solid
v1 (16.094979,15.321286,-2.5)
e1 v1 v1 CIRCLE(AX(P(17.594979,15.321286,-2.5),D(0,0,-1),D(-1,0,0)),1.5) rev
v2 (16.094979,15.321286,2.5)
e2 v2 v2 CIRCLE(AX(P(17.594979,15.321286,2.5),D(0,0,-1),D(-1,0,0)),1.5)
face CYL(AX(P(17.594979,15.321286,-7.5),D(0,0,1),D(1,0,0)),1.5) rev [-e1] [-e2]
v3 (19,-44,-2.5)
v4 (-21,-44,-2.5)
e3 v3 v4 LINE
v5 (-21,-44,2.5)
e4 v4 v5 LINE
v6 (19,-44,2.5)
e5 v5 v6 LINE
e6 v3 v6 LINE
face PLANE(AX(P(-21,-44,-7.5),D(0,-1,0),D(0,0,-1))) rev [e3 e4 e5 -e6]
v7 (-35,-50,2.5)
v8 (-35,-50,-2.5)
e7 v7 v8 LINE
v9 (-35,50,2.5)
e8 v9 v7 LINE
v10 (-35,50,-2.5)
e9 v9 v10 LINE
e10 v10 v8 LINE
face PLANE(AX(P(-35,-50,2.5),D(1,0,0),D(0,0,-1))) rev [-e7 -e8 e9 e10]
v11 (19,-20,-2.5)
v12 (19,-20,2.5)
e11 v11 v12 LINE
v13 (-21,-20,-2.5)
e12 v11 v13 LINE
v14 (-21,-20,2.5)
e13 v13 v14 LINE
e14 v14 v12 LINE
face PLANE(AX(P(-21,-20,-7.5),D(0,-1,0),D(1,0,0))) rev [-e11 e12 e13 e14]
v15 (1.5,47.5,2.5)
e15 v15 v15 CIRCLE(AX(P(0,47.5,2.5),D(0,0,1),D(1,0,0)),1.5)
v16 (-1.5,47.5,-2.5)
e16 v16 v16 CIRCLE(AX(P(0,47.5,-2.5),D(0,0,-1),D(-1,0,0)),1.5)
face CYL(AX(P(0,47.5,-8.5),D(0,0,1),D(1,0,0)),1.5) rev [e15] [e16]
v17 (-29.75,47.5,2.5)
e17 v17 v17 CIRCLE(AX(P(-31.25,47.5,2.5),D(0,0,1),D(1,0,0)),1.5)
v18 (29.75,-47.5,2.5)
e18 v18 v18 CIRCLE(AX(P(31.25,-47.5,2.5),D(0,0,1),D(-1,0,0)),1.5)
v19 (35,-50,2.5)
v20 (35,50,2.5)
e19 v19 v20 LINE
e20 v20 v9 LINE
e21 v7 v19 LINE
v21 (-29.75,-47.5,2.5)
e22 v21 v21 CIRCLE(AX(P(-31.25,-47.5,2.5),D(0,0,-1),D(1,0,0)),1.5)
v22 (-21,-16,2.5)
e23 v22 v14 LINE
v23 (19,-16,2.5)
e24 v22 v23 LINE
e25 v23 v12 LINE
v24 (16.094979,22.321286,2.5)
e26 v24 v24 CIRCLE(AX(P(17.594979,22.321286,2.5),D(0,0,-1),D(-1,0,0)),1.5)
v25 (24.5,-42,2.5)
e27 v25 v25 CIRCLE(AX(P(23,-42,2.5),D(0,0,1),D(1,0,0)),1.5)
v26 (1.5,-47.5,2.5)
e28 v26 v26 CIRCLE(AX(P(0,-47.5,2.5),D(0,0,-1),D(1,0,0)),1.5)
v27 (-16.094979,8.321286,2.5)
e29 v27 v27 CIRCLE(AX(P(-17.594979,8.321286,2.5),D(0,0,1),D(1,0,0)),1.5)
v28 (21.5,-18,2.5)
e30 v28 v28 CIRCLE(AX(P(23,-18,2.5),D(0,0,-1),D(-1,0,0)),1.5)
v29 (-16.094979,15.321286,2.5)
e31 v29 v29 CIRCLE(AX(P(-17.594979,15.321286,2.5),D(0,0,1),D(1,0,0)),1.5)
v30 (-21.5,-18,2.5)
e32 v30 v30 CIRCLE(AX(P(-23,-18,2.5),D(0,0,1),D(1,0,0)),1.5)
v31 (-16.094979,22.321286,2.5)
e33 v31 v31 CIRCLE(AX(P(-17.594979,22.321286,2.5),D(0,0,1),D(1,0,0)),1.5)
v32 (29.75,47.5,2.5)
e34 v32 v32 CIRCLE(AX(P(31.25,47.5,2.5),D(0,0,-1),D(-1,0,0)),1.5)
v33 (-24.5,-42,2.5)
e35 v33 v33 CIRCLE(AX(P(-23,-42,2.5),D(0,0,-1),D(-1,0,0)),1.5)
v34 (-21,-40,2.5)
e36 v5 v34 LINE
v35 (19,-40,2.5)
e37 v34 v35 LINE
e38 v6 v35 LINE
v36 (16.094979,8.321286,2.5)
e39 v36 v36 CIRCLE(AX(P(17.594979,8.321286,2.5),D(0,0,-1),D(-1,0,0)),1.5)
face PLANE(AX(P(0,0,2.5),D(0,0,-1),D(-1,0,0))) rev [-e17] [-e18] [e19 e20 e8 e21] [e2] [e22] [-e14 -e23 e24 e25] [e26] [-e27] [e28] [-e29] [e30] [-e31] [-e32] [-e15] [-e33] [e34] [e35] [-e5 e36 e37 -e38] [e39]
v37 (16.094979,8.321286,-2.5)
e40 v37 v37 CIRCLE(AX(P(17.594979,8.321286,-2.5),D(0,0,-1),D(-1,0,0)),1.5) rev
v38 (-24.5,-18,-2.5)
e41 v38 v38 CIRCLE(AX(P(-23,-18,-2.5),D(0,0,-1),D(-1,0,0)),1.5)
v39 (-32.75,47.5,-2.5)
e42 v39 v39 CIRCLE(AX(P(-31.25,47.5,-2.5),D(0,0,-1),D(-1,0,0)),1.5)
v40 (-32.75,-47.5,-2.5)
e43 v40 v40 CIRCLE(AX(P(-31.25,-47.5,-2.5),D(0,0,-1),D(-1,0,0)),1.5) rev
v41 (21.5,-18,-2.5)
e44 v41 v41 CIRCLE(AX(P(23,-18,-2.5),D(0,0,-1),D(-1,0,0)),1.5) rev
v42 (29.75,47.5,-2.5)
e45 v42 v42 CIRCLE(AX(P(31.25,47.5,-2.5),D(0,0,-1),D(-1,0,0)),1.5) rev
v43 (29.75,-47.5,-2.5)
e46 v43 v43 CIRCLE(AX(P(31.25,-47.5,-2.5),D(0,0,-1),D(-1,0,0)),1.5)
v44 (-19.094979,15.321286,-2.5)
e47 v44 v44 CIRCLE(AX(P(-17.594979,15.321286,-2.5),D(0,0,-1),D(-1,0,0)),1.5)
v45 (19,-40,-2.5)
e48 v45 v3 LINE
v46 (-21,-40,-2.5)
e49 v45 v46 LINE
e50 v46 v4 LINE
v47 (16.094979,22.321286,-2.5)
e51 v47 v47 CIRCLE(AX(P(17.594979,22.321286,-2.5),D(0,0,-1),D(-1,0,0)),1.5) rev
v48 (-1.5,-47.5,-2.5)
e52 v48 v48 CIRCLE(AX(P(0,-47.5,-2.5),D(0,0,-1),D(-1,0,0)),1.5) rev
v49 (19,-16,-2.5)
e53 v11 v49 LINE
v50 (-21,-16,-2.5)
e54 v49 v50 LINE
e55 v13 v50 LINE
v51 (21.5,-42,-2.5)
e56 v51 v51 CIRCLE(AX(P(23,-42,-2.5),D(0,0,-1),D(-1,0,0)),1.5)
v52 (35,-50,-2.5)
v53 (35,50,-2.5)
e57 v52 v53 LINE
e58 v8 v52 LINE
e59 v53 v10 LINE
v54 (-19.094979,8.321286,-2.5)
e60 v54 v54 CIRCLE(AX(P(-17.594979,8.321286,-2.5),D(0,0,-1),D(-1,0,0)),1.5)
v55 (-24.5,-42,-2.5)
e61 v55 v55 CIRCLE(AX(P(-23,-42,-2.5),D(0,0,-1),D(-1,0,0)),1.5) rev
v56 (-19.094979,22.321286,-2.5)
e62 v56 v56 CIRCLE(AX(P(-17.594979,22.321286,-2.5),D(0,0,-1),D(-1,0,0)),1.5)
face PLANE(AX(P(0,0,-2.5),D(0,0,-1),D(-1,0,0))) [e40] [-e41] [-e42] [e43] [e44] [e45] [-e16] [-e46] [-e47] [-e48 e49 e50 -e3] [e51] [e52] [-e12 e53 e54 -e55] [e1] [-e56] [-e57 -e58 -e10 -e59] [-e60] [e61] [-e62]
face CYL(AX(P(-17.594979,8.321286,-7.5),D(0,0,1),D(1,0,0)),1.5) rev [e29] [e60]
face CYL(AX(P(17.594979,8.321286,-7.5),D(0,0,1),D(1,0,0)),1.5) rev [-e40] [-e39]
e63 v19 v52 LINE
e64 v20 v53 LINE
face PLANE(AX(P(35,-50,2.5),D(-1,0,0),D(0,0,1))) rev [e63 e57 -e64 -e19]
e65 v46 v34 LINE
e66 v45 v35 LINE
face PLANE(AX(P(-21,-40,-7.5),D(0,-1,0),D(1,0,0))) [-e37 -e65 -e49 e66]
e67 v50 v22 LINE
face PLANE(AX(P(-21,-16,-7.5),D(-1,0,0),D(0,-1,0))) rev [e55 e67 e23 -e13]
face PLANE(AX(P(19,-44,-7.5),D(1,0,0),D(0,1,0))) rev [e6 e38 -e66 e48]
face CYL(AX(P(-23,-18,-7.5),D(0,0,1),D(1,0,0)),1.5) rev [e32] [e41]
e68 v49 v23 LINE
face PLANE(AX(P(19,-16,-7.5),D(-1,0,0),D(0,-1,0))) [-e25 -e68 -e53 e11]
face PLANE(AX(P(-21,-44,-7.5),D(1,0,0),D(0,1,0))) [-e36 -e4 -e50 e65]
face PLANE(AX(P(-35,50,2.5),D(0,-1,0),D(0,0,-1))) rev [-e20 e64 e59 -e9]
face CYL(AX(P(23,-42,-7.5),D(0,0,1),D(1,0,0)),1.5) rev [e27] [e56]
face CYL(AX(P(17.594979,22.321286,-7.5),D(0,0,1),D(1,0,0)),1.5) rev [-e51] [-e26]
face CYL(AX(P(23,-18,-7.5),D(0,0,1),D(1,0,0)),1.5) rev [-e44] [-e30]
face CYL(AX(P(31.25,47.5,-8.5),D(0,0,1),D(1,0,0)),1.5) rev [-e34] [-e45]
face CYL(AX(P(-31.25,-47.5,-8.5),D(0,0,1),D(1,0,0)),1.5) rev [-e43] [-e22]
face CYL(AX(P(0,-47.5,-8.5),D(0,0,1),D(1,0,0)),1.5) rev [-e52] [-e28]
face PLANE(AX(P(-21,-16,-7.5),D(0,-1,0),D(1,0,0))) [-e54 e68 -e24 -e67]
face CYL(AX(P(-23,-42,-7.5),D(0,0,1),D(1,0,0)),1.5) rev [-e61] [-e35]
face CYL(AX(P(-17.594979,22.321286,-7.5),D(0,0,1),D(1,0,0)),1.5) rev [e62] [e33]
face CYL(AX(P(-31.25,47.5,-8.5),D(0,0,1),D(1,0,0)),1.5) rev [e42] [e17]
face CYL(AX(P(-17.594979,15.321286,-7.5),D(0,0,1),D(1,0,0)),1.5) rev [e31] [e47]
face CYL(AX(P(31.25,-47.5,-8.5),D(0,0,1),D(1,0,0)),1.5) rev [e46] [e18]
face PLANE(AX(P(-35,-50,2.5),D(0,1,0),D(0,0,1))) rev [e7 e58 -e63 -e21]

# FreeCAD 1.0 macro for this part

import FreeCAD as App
import Part
import Sketcher
from FreeCAD import Vector

doc = App.newDocument("Part")
params = doc.addObject("Spreadsheet::Sheet", "Params")
for row, (alias, value) in enumerate([
    ("sketch1_width", "70 mm"),
    ("sketch1_height", "100 mm"),
    ("pad1_length", "5 mm"),
    ("sketch2_diameter", "3 mm"),
    ("pocket1_length", "11 mm"),
    ("sketch3_diameter", "3 mm"),
    ("sketch3_width", "40 mm"),
    ("sketch3_height", "4 mm"),
    ("pocket2_length", "10 mm"),
], start=1):
    params.set(f"A{row}", alias)
    params.set(f"B{row}", "=" + value)
    params.setAlias(f"B{row}", alias)

body = doc.addObject("PartDesign::Body", "Body")

sketch1 = doc.addObject("Sketcher::SketchObject", "Sketch")
body.addObject(sketch1)
sketch1.AttachmentSupport = (doc.XY_Plane, [""])
sketch1.MapMode = "FlatFace"
sketch1.addGeometry(Part.LineSegment(Vector(-35, 50, 0), Vector(-35, -50, 0)), False)
sketch1.addGeometry(Part.LineSegment(Vector(-35, -50, 0), Vector(35, -50, 0)), False)
sketch1.addGeometry(Part.LineSegment(Vector(35, -50, 0), Vector(35, 50, 0)), False)
sketch1.addGeometry(Part.LineSegment(Vector(35, 50, 0), Vector(-35, 50, 0)), False)
sketch1.addConstraint(Sketcher.Constraint("Coincident", 0, 2, 1, 1))
sketch1.addConstraint(Sketcher.Constraint("Coincident", 1, 2, 2, 1))
sketch1.addConstraint(Sketcher.Constraint("Coincident", 2, 2, 3, 1))
sketch1.addConstraint(Sketcher.Constraint("Coincident", 3, 2, 0, 1))
sketch1.addConstraint(Sketcher.Constraint("Vertical", 0))
sketch1.addConstraint(Sketcher.Constraint("Horizontal", 1))
sketch1.addConstraint(Sketcher.Constraint("Vertical", 2))
sketch1.addConstraint(Sketcher.Constraint("Horizontal", 3))
sketch1.addConstraint(Sketcher.Constraint("Symmetric", 0, 2, 2, 2, -1, 1))
sketch1.addConstraint(Sketcher.Constraint("DistanceX", 1, 1, 1, 2, 70.0))
sketch1.addConstraint(Sketcher.Constraint("DistanceY", 0, 2, 0, 1, 100.0))
sketch1.setExpression("Constraints[9]", "Params.sketch1_width")
sketch1.setExpression("Constraints[10]", "Params.sketch1_height")
pad1 = doc.addObject("PartDesign::Pad", "Pad")
body.addObject(pad1)
pad1.Profile = sketch1
pad1.setExpression("Length", "Params.pad1_length")
pad1.Midplane = True

sketch2 = doc.addObject("Sketcher::SketchObject", "Sketch001")
body.addObject(sketch2)
sketch2.AttachmentSupport = (doc.XY_Plane, [""])
sketch2.MapMode = "FlatFace"
sketch2.AttachmentOffset = App.Placement(Vector(0, 0, 2.5), App.Rotation())
sketch2.addGeometry(Part.Circle(Vector(0, 47.5, 0), Vector(0, 0, 1), 1.5), False)
sketch2.addGeometry(Part.Circle(Vector(-31.2, 47.5, 0), Vector(0, 0, 1), 1.5), False)
sketch2.addGeometry(Part.Circle(Vector(31.2, 47.5, 0), Vector(0, 0, 1), 1.5), False)
sketch2.addConstraint(Sketcher.Constraint("Equal", 0, 1))
sketch2.addConstraint(Sketcher.Constraint("Equal", 1, 2))
sketch2.addConstraint(Sketcher.Constraint("Symmetric", 1, 3, 2, 3, -2))
sketch2.addConstraint(Sketcher.Constraint("PointOnObject", 0, 3, -2))
sketch2.addConstraint(Sketcher.Constraint("Horizontal", 0, 3, 1, 3))
sketch2.addConstraint(Sketcher.Constraint("Diameter", 0, 3.0))
sketch2.addConstraint(Sketcher.Constraint("DistanceY", -1, 1, 0, 3, 47.5))
sketch2.addConstraint(Sketcher.Constraint("DistanceX", 1, 3, 2, 3, 62.5))
sketch2.setExpression("Constraints[5]", "Params.sketch2_diameter")
pocket1 = doc.addObject("PartDesign::Pocket", "Pocket")
body.addObject(pocket1)
pocket1.Profile = sketch2
pocket1.setExpression("Length", "Params.pocket1_length")
doc.recompute()

mirrored = doc.addObject("PartDesign::Mirrored", "Mirrored")
body.addObject(mirrored)
mirrored.Originals = [pocket1]
mirrored.MirrorPlane = (doc.XZ_Plane, [""])
body.Tip = mirrored

sketch3 = doc.addObject("Sketcher::SketchObject", "Sketch002")
body.addObject(sketch3)
sketch3.AttachmentSupport = (doc.XY_Plane, [""])
sketch3.MapMode = "FlatFace"
sketch3.AttachmentOffset = App.Placement(Vector(0, 0, 2.5), App.Rotation())
sketch3.addGeometry(Part.Circle(Vector(-17.6, 15.3, 0), Vector(0, 0, 1), 1.5), False)
sketch3.addGeometry(Part.Circle(Vector(-17.6, 22.3, 0), Vector(0, 0, 1), 1.5), False)
sketch3.addGeometry(Part.Circle(Vector(-17.6, 8.3, 0), Vector(0, 0, 1), 1.5), False)
sketch3.addGeometry(Part.Circle(Vector(17.6, 8.3, 0), Vector(0, 0, 1), 1.5), False)
sketch3.addGeometry(Part.Circle(Vector(17.6, 15.3, 0), Vector(0, 0, 1), 1.5), False)
sketch3.addGeometry(Part.Circle(Vector(17.6, 22.3, 0), Vector(0, 0, 1), 1.5), False)
sketch3.addGeometry(Part.Circle(Vector(-23, -18, 0), Vector(0, 0, 1), 1.5), False)
sketch3.addGeometry(Part.Circle(Vector(23, -18, 0), Vector(0, 0, 1), 1.5), False)
sketch3.addGeometry(Part.Circle(Vector(23, -42, 0), Vector(0, 0, 1), 1.5), False)
sketch3.addGeometry(Part.Circle(Vector(-23, -42, 0), Vector(0, 0, 1), 1.5), False)
sketch3.addGeometry(Part.LineSegment(Vector(-21, -40, 0), Vector(-21, -44, 0)), False)
sketch3.addGeometry(Part.LineSegment(Vector(-21, -44, 0), Vector(19, -44, 0)), False)
sketch3.addGeometry(Part.LineSegment(Vector(19, -44, 0), Vector(19, -40, 0)), False)
sketch3.addGeometry(Part.LineSegment(Vector(19, -40, 0), Vector(-21, -40, 0)), False)
sketch3.addGeometry(Part.LineSegment(Vector(-21, -16, 0), Vector(-21, -20, 0)), False)
sketch3.addGeometry(Part.LineSegment(Vector(-21, -20, 0), Vector(19, -20, 0)), False)
sketch3.addGeometry(Part.LineSegment(Vector(19, -20, 0), Vector(19, -16, 0)), False)
sketch3.addGeometry(Part.LineSegment(Vector(19, -16, 0), Vector(-21, -16, 0)), False)
sketch3.addConstraint(Sketcher.Constraint("Coincident", 10, 2, 11, 1))
sketch3.addConstraint(Sketcher.Constraint("Coincident", 11, 2, 12, 1))
sketch3.addConstraint(Sketcher.Constraint("Coincident", 12, 2, 13, 1))
sketch3.addConstraint(Sketcher.Constraint("Coincident", 13, 2, 10, 1))
sketch3.addConstraint(Sketcher.Constraint("Coincident", 14, 2, 15, 1))
sketch3.addConstraint(Sketcher.Constraint("Coincident", 15, 2, 16, 1))
sketch3.addConstraint(Sketcher.Constraint("Coincident", 16, 2, 17, 1))
sketch3.addConstraint(Sketcher.Constraint("Coincident", 17, 2, 14, 1))
sketch3.addConstraint(Sketcher.Constraint("Vertical", 10))
sketch3.addConstraint(Sketcher.Constraint("Horizontal", 11))
sketch3.addConstraint(Sketcher.Constraint("Vertical", 12))
sketch3.addConstraint(Sketcher.Constraint("Horizontal", 13))
sketch3.addConstraint(Sketcher.Constraint("Vertical", 14))
sketch3.addConstraint(Sketcher.Constraint("Horizontal", 15))
sketch3.addConstraint(Sketcher.Constraint("Vertical", 16))
sketch3.addConstraint(Sketcher.Constraint("Horizontal", 17))
sketch3.addConstraint(Sketcher.Constraint("Equal", 0, 1))
sketch3.addConstraint(Sketcher.Constraint("Equal", 1, 2))
sketch3.addConstraint(Sketcher.Constraint("Equal", 2, 3))
sketch3.addConstraint(Sketcher.Constraint("Equal", 3, 4))
sketch3.addConstraint(Sketcher.Constraint("Equal", 4, 5))
sketch3.addConstraint(Sketcher.Constraint("Equal", 5, 6))
sketch3.addConstraint(Sketcher.Constraint("Equal", 6, 7))
sketch3.addConstraint(Sketcher.Constraint("Equal", 7, 8))
sketch3.addConstraint(Sketcher.Constraint("Equal", 8, 9))
sketch3.addConstraint(Sketcher.Constraint("Symmetric", 2, 3, 3, 3, -2))
sketch3.addConstraint(Sketcher.Constraint("Symmetric", 0, 3, 4, 3, -2))
sketch3.addConstraint(Sketcher.Constraint("Symmetric", 1, 3, 5, 3, -2))
sketch3.addConstraint(Sketcher.Constraint("Symmetric", 6, 3, 7, 3, -2))
sketch3.addConstraint(Sketcher.Constraint("Symmetric", 8, 3, 9, 3, -2))
sketch3.addConstraint(Sketcher.Constraint("Vertical", 0, 3, 1, 3))
sketch3.addConstraint(Sketcher.Constraint("Vertical", 1, 3, 2, 3))
sketch3.addConstraint(Sketcher.Constraint("Vertical", 7, 3, 8, 3))
sketch3.addConstraint(Sketcher.Constraint("Vertical", 13, 2, 14, 2))
sketch3.addConstraint(Sketcher.Constraint("Vertical", 12, 2, 15, 2))
sketch3.addConstraint(Sketcher.Constraint("Equal", 12, 14))
sketch3.addConstraint(Sketcher.Constraint("Diameter", 0, 3.0))
sketch3.addConstraint(Sketcher.Constraint("DistanceX", 11, 1, 11, 2, 40.0))
sketch3.addConstraint(Sketcher.Constraint("DistanceY", 10, 2, 10, 1, 4.0))
sketch3.addConstraint(Sketcher.Constraint("DistanceX", 6, 3, -1, 1, 23.0))
sketch3.addConstraint(Sketcher.Constraint("DistanceY", 6, 3, -1, 1, 18.0))
sketch3.addConstraint(Sketcher.Constraint("DistanceY", 8, 3, -1, 1, 42.0))
sketch3.addConstraint(Sketcher.Constraint("DistanceX", 10, 2, -1, 1, 21.0))
sketch3.addConstraint(Sketcher.Constraint("DistanceY", 10, 2, -1, 1, 44.0))
sketch3.addConstraint(Sketcher.Constraint("DistanceY", 14, 2, -1, 1, 20.0))
sketch3.addConstraint(Sketcher.Constraint("DistanceY", 0, 3, 1, 3, 7.0))
sketch3.addConstraint(Sketcher.Constraint("DistanceY", 2, 3, 0, 3, 7.0))
sketch3.addConstraint(Sketcher.Constraint("DistanceX", 0, 3, -1, 1, 17.594979))
sketch3.addConstraint(Sketcher.Constraint("DistanceY", -1, 1, 0, 3, 15.321286))
sketch3.setExpression("Constraints[36]", "Params.sketch3_diameter")
sketch3.setExpression("Constraints[37]", "Params.sketch3_width")
sketch3.setExpression("Constraints[38]", "Params.sketch3_height")
pocket2 = doc.addObject("PartDesign::Pocket", "Pocket001")
body.addObject(pocket2)
pocket2.Profile = sketch3
pocket2.setExpression("Length", "Params.pocket2_length")

doc.recompute()
